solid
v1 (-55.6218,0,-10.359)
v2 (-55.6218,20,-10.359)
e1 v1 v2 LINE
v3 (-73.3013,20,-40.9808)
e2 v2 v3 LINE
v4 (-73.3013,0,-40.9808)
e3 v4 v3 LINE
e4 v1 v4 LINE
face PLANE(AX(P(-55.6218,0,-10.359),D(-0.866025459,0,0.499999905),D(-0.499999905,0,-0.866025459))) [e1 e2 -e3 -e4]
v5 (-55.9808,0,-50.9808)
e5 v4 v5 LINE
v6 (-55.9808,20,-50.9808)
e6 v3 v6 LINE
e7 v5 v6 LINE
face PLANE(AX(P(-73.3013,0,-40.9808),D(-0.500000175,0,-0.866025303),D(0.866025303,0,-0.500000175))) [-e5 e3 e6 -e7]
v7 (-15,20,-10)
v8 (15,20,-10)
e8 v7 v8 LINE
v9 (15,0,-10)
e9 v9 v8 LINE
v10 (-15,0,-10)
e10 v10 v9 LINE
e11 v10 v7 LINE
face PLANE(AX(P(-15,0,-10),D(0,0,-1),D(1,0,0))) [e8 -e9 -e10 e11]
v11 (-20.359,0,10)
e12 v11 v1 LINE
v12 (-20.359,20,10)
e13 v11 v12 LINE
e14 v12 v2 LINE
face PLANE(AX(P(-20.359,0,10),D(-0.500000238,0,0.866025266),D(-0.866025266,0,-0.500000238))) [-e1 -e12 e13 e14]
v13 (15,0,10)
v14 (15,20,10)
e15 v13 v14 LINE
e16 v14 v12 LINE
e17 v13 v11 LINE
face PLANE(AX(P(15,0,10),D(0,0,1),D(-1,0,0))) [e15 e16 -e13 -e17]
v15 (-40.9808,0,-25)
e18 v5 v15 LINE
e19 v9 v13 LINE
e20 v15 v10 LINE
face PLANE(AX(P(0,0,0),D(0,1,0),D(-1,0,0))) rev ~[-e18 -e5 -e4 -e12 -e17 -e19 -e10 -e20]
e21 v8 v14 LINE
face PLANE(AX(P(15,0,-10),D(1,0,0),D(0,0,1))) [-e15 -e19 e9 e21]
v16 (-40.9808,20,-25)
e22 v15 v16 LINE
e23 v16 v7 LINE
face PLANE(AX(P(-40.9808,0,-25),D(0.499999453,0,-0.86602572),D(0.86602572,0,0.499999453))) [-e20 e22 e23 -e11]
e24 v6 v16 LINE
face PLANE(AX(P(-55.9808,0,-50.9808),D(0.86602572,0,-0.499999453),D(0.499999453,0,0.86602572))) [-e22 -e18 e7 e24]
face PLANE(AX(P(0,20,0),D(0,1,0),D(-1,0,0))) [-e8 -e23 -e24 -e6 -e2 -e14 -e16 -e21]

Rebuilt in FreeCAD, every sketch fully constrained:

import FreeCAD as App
import Part
import Sketcher
from FreeCAD import Vector
Q = App.Units.Quantity

doc = App.newDocument("Part")
params = doc.addObject("Spreadsheet::Sheet", "Params")
for row, (alias, value) in enumerate([
    ("sketch1_width", "30 mm"),
    ("sketch1_length", "30 mm"),
    ("sketch1_height", "20 mm"),
    ("sketch1_length2", "20 mm"),
    ("pad1_length", "20 mm"),
], start=1):
    params.set(f"A{row}", alias)
    params.set(f"B{row}", "=" + value)
    params.setAlias(f"B{row}", alias)

body = doc.addObject("PartDesign::Body", "Body")

sketch1 = body.newObject("Sketcher::SketchObject", "Sketch")
sketch1.AttachmentSupport = (doc.getObject("XZ_Plane"), [""])
sketch1.MapMode = "FlatFace"
sketch1.addGeometry([
    Part.LineSegment(Vector(-20, 10, 0), Vector(15, 10, 0)),
    Part.LineSegment(Vector(15, 10, 0), Vector(15, -10, 0)),
    Part.LineSegment(Vector(15, -10, 0), Vector(-15, -10, 0)),
    Part.LineSegment(Vector(-15, -10, 0), Vector(-41, -25, 0)),
    Part.LineSegment(Vector(-41, -25, 0), Vector(-56, -51, 0)),
    Part.LineSegment(Vector(-56, -51, 0), Vector(-73, -41, 0)),
    Part.LineSegment(Vector(-73, -41, 0), Vector(-56, -10, 0)),
    Part.LineSegment(Vector(-56, -10, 0), Vector(-20, 10, 0)),
], False)
sketch1.addConstraint([
    Sketcher.Constraint("Coincident", 0, 2, 1, 1),
    Sketcher.Constraint("Coincident", 1, 2, 2, 1),
    Sketcher.Constraint("Coincident", 2, 2, 3, 1),
    Sketcher.Constraint("Coincident", 3, 2, 4, 1),
    Sketcher.Constraint("Coincident", 4, 2, 5, 1),
    Sketcher.Constraint("Coincident", 5, 2, 6, 1),
    Sketcher.Constraint("Coincident", 6, 2, 7, 1),
    Sketcher.Constraint("Coincident", 7, 2, 0, 1),
    Sketcher.Constraint("Horizontal", 0),
    Sketcher.Constraint("Vertical", 1),
    Sketcher.Constraint("Horizontal", 2),
    Sketcher.Constraint("Symmetric", 0, 2, 2, 2, -1, 1),
    Sketcher.Constraint("Perpendicular", 4, 5),
    Sketcher.Constraint("Perpendicular", 5, 6),
    Sketcher.Constraint("Parallel", 3, 7),
    Sketcher.Constraint("Equal", 3, 4),
    Sketcher.Constraint("DistanceX", 2, 2, 2, 1, Q("30 mm")),
    Sketcher.Constraint("Angle", 7, Q("30 deg")),
    Sketcher.Constraint("Distance", 3, Q("30 mm")),
    Sketcher.Constraint("DistanceY", 1, 2, 1, 1, Q("20 mm")),
    Sketcher.Constraint("Angle", 4, Q("-120 deg")),
    Sketcher.Constraint("Distance", 5, Q("20 mm")),
    Sketcher.Constraint("DistanceX", 0, 1, 0, 2, Q("35.359 mm")),
])
sketch1.setExpression("Constraints[16]", "Params.sketch1_width")
sketch1.setExpression("Constraints[18]", "Params.sketch1_length")
sketch1.setExpression("Constraints[19]", "Params.sketch1_height")
sketch1.setExpression("Constraints[21]", "Params.sketch1_length2")
pad1 = body.newObject("PartDesign::Pad", "Pad")
pad1.Profile = sketch1
pad1.setExpression("Length", "Params.pad1_length")
pad1.Reversed = True

doc.recompute()
